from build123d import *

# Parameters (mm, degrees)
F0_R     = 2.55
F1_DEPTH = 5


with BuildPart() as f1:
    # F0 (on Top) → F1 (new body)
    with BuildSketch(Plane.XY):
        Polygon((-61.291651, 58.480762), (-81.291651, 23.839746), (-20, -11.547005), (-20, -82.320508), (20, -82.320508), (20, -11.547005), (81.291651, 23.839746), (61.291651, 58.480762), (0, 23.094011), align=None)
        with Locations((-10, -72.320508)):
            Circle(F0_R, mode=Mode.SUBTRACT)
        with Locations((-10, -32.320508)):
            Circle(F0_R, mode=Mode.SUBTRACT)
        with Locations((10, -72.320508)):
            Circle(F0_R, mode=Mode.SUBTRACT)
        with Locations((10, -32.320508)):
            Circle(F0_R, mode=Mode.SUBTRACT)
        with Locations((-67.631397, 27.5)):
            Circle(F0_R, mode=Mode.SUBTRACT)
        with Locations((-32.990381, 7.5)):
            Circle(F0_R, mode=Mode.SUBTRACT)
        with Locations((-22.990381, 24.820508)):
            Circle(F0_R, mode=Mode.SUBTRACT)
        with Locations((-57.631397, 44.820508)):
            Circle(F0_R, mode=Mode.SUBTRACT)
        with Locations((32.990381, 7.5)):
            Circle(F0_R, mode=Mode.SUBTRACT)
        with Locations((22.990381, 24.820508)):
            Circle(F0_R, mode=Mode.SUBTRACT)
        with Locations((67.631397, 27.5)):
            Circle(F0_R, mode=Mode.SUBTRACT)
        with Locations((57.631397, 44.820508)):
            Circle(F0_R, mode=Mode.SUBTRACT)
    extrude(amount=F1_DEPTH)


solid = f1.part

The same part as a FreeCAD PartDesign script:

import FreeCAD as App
import Part
import Sketcher

V = App.Vector
Q = App.Units.Quantity


def add_polygon(sketch, points):
    """Adds a closed chain of lines whose ends are joined by coincident constraints."""
    first, n = sketch.GeometryCount, len(points)
    for a, b in zip(points, points[1:] + points[:1]):
        sketch.addGeometry(Part.LineSegment(App.Vector(*a, 0), App.Vector(*b, 0)), False)
    for i in range(n):
        sketch.addConstraint(Sketcher.Constraint("Coincident", first + i, 2, first + (i + 1) % n, 1))

doc = App.newDocument("Part")
body = doc.addObject("PartDesign::Body", "Body")

sketch1 = body.newObject("Sketcher::SketchObject", "Sketch")
sketch1.AttachmentSupport = (doc.getObject("XY_Plane"), [""])
sketch1.MapMode = "FlatFace"
add_polygon(sketch1, [(-61.3, 58.5), (-81.3, 23.8), (-20, -11.5), (-20, -82.3), (20, -82.3), (20, -11.5), (81.3, 23.8), (61.3, 58.5), (0, 23.1)])
sketch1.addGeometry(Part.Circle(V(-10, -72.3, 0), V(0, 0, 1), 2.5), False)
sketch1.addGeometry(Part.Circle(V(-10, -32.3, 0), V(0, 0, 1), 2.5), False)
sketch1.addGeometry(Part.Circle(V(10, -72.3, 0), V(0, 0, 1), 2.5), False)
sketch1.addGeometry(Part.Circle(V(10, -32.3, 0), V(0, 0, 1), 2.5), False)
sketch1.addGeometry(Part.Circle(V(-33, 7.5, 0), V(0, 0, 1), 2.5), False)
sketch1.addGeometry(Part.Circle(V(-67.6, 27.5, 0), V(0, 0, 1), 2.5), False)
sketch1.addGeometry(Part.Circle(V(-57.6, 44.8, 0), V(0, 0, 1), 2.5), False)
sketch1.addGeometry(Part.Circle(V(-23, 24.8, 0), V(0, 0, 1), 2.5), False)
sketch1.addGeometry(Part.Circle(V(33, 7.5, 0), V(0, 0, 1), 2.5), False)
sketch1.addGeometry(Part.Circle(V(23, 24.8, 0), V(0, 0, 1), 2.5), False)
sketch1.addGeometry(Part.Circle(V(67.6, 27.5, 0), V(0, 0, 1), 2.5), False)
sketch1.addGeometry(Part.Circle(V(57.6, 44.8, 0), V(0, 0, 1), 2.5), False)
sketch1.addConstraint([
    Sketcher.Constraint("Vertical", 2),
    Sketcher.Constraint("Horizontal", 3),
    Sketcher.Constraint("Vertical", 4),
    Sketcher.Constraint("Equal", 9, 10),
    Sketcher.Constraint("Equal", 10, 11),
    Sketcher.Constraint("Equal", 11, 12),
    Sketcher.Constraint("Equal", 12, 13),
    Sketcher.Constraint("Equal", 13, 14),
    Sketcher.Constraint("Equal", 14, 15),
    Sketcher.Constraint("Equal", 15, 16),
    Sketcher.Constraint("Equal", 16, 17),
    Sketcher.Constraint("Equal", 17, 18),
    Sketcher.Constraint("Equal", 18, 19),
    Sketcher.Constraint("Equal", 19, 20),
    Sketcher.Constraint("Symmetric", 9, 3, 11, 3, -2),
    Sketcher.Constraint("Symmetric", 10, 3, 12, 3, -2),
    Sketcher.Constraint("Symmetric", 13, 3, 17, 3, -2),
    Sketcher.Constraint("Symmetric", 16, 3, 18, 3, -2),
    Sketcher.Constraint("Symmetric", 14, 3, 19, 3, -2),
    Sketcher.Constraint("Symmetric", 15, 3, 20, 3, -2),
    Sketcher.Constraint("Symmetric", 1, 2, 4, 2, -2),
    Sketcher.Constraint("Symmetric", 0, 2, 5, 2, -2),
    Sketcher.Constraint("Symmetric", 6, 2, 8, 2, -2),
    Sketcher.Constraint("PointOnObject", 7, 2, -2),
    Sketcher.Constraint("Perpendicular", 0, 1),
    Sketcher.Constraint("Perpendicular", 6, 7),
    Sketcher.Constraint("Vertical", 9, 3, 10, 3),
    Sketcher.Constraint("Equal", 5, 7),
    Sketcher.Constraint("Diameter", 9, 5.1),
    Sketcher.Constraint("DistanceX", 3, 1, 3, 2, 40.0),
    Sketcher.Constraint("Angle", 0, Q("-120 deg")),
    Sketcher.Constraint("DistanceX", 9, 3, -1, 1, 10.0),
    Sketcher.Constraint("DistanceY", 9, 3, 10, 3, 40.0),
    Sketcher.Constraint("DistanceY", 13, 3, 14, 3, 20.0),
    Sketcher.Constraint("DistanceX", 14, 3, 15, 3, 10.0),
    Sketcher.Constraint("DistanceX", 13, 3, 16, 3, 10.0),
    Sketcher.Constraint("DistanceY", 16, 3, 15, 3, 20.0),
    Sketcher.Constraint("DistanceY", 2, 2, 9, 3, 10.0),
    Sketcher.Constraint("DistanceY", -1, 1, 13, 3, 7.5),
    Sketcher.Constraint("DistanceY", 2, 2, 2, 1, 70.773503),
    Sketcher.Constraint("DistanceY", 9, 3, -1, 1, 72.320508),
    Sketcher.Constraint("DistanceX", 13, 3, -1, 1, 32.990381),
    Sketcher.Constraint("DistanceY", -1, 1, 16, 3, 24.820508),
    Sketcher.Constraint("DistanceX", 0, 2, -1, 1, 81.291651),
    Sketcher.Constraint("DistanceX", 16, 3, 19, 3, 90.621778),
])
pad1 = body.newObject("PartDesign::Pad", "Pad")
pad1.Profile = sketch1
pad1.Length = 5

doc.recompute()
